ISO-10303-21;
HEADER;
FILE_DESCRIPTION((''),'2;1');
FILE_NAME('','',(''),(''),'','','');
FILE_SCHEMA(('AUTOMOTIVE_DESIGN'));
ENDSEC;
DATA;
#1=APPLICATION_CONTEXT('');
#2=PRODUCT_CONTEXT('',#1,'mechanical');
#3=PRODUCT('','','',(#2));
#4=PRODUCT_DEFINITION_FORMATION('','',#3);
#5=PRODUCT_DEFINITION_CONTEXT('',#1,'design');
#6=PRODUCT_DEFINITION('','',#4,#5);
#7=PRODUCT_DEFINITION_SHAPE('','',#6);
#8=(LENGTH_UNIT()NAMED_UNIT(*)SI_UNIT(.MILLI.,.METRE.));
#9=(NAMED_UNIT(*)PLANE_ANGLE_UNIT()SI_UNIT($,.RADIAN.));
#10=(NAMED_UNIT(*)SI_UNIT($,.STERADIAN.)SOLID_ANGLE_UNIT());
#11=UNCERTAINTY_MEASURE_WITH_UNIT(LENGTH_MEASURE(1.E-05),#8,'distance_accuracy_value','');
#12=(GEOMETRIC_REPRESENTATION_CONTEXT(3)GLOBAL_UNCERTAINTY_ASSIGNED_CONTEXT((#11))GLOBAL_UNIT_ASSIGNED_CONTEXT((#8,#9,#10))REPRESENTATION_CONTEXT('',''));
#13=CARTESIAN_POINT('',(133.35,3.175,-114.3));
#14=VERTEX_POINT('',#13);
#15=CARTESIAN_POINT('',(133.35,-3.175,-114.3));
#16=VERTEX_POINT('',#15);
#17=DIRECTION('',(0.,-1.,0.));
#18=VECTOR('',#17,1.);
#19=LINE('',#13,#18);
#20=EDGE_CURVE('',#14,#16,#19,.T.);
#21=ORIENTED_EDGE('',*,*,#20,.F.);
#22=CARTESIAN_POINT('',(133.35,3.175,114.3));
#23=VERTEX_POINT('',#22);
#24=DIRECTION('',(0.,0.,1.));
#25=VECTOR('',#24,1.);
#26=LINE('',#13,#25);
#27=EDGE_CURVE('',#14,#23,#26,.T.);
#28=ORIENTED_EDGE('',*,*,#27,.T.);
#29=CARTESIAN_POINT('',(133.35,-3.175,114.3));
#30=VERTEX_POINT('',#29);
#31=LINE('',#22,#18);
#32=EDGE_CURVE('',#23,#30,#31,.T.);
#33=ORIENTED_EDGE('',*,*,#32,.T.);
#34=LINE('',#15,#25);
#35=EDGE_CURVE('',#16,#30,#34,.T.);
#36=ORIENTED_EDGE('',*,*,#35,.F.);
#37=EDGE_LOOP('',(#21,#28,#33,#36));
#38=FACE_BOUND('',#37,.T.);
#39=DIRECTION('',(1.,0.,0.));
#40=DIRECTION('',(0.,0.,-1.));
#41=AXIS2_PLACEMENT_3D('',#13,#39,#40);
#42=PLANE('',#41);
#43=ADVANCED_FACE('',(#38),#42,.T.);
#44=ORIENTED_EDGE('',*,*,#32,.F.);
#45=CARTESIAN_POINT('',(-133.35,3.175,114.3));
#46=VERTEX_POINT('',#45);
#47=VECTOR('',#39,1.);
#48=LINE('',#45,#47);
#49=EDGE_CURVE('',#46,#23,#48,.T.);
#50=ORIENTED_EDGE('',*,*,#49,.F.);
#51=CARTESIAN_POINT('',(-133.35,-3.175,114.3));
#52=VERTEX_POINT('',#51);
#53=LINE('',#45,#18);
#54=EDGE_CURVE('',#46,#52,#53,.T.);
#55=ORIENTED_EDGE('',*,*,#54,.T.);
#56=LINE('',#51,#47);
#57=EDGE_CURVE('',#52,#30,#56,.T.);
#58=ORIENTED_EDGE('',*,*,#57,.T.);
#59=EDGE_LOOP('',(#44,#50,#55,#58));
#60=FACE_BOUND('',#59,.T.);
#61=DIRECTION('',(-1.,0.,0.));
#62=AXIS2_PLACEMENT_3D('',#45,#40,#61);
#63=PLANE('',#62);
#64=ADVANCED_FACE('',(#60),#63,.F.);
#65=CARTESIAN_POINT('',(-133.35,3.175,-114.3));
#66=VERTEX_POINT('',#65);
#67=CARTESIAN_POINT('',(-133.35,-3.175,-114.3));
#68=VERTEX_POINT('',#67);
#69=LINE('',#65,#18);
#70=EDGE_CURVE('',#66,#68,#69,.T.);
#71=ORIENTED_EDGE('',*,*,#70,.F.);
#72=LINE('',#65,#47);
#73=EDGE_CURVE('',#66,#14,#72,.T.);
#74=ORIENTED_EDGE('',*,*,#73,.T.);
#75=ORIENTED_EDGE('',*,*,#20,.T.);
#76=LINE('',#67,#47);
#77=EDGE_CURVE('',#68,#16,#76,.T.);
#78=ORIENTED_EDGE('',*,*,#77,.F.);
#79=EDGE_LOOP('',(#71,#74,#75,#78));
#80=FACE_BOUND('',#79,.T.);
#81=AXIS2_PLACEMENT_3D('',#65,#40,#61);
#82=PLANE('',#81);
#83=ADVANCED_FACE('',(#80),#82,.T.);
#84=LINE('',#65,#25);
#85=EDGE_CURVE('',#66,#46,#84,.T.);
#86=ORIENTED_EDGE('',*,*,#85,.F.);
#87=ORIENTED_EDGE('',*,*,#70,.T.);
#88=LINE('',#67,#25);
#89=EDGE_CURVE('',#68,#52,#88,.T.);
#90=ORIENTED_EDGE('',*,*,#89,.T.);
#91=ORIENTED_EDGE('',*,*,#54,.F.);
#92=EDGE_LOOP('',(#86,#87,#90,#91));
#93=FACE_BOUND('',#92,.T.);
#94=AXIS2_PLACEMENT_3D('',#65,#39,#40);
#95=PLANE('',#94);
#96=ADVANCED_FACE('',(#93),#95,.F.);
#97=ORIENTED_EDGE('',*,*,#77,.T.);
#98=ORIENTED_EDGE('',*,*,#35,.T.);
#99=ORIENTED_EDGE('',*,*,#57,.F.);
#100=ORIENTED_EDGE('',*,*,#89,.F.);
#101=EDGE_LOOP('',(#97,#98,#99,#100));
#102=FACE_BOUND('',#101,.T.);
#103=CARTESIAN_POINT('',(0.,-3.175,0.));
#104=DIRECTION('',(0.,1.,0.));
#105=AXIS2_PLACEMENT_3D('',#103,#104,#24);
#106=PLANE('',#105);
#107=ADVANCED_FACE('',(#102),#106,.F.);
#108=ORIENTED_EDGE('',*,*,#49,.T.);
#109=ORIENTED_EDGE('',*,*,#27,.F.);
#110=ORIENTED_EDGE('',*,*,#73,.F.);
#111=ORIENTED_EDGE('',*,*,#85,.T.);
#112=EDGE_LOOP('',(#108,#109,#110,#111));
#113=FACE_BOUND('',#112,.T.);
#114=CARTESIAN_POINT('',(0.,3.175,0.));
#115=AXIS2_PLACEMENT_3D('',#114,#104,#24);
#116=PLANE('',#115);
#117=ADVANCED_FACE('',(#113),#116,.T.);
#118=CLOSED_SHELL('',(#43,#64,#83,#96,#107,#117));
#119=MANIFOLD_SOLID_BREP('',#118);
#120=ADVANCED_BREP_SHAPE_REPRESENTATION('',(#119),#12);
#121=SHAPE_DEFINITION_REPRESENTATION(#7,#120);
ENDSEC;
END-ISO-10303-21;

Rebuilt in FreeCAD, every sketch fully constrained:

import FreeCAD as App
import Part
import Sketcher
from FreeCAD import Vector
Q = App.Units.Quantity

doc = App.newDocument("Part")
body = doc.addObject("PartDesign::Body", "Body")

# Sketch on XZ plane
sketch1 = doc.addObject("Sketcher::SketchObject", "Sketch")
body.addObject(sketch1)
sketch1.AttachmentSupport = (doc.XZ_Plane, [""])
sketch1.MapMode = "FlatFace"
sketch1.addGeometry(Part.LineSegment(Vector(-133, -114, 0), Vector(-133, 114, 0)), False)
sketch1.addGeometry(Part.LineSegment(Vector(-133, 114, 0), Vector(133, 114, 0)), False)
sketch1.addGeometry(Part.LineSegment(Vector(133, 114, 0), Vector(133, -114, 0)), False)
sketch1.addGeometry(Part.LineSegment(Vector(133, -114, 0), Vector(-133, -114, 0)), False)
sketch1.addConstraint(Sketcher.Constraint("Coincident", 0, 2, 1, 1))
sketch1.addConstraint(Sketcher.Constraint("Coincident", 1, 2, 2, 1))
sketch1.addConstraint(Sketcher.Constraint("Coincident", 2, 2, 3, 1))
sketch1.addConstraint(Sketcher.Constraint("Coincident", 3, 2, 0, 1))
sketch1.addConstraint(Sketcher.Constraint("Vertical", 0))
sketch1.addConstraint(Sketcher.Constraint("Horizontal", 1))
sketch1.addConstraint(Sketcher.Constraint("Vertical", 2))
sketch1.addConstraint(Sketcher.Constraint("Horizontal", 3))
sketch1.addConstraint(Sketcher.Constraint("Symmetric", 0, 2, 2, 2, -1, 1))
sketch1.addConstraint(Sketcher.Constraint("DistanceY", 0, 1, 0, 2, Q("9 in")))
sketch1.addConstraint(Sketcher.Constraint("DistanceX", 1, 1, 1, 2, Q("10.5 in")))
pad1 = doc.addObject("PartDesign::Pad", "Pad")
body.addObject(pad1)
pad1.Profile = sketch1
pad1.Length = Q("0.25 in")
pad1.Midplane = True

doc.recompute()
